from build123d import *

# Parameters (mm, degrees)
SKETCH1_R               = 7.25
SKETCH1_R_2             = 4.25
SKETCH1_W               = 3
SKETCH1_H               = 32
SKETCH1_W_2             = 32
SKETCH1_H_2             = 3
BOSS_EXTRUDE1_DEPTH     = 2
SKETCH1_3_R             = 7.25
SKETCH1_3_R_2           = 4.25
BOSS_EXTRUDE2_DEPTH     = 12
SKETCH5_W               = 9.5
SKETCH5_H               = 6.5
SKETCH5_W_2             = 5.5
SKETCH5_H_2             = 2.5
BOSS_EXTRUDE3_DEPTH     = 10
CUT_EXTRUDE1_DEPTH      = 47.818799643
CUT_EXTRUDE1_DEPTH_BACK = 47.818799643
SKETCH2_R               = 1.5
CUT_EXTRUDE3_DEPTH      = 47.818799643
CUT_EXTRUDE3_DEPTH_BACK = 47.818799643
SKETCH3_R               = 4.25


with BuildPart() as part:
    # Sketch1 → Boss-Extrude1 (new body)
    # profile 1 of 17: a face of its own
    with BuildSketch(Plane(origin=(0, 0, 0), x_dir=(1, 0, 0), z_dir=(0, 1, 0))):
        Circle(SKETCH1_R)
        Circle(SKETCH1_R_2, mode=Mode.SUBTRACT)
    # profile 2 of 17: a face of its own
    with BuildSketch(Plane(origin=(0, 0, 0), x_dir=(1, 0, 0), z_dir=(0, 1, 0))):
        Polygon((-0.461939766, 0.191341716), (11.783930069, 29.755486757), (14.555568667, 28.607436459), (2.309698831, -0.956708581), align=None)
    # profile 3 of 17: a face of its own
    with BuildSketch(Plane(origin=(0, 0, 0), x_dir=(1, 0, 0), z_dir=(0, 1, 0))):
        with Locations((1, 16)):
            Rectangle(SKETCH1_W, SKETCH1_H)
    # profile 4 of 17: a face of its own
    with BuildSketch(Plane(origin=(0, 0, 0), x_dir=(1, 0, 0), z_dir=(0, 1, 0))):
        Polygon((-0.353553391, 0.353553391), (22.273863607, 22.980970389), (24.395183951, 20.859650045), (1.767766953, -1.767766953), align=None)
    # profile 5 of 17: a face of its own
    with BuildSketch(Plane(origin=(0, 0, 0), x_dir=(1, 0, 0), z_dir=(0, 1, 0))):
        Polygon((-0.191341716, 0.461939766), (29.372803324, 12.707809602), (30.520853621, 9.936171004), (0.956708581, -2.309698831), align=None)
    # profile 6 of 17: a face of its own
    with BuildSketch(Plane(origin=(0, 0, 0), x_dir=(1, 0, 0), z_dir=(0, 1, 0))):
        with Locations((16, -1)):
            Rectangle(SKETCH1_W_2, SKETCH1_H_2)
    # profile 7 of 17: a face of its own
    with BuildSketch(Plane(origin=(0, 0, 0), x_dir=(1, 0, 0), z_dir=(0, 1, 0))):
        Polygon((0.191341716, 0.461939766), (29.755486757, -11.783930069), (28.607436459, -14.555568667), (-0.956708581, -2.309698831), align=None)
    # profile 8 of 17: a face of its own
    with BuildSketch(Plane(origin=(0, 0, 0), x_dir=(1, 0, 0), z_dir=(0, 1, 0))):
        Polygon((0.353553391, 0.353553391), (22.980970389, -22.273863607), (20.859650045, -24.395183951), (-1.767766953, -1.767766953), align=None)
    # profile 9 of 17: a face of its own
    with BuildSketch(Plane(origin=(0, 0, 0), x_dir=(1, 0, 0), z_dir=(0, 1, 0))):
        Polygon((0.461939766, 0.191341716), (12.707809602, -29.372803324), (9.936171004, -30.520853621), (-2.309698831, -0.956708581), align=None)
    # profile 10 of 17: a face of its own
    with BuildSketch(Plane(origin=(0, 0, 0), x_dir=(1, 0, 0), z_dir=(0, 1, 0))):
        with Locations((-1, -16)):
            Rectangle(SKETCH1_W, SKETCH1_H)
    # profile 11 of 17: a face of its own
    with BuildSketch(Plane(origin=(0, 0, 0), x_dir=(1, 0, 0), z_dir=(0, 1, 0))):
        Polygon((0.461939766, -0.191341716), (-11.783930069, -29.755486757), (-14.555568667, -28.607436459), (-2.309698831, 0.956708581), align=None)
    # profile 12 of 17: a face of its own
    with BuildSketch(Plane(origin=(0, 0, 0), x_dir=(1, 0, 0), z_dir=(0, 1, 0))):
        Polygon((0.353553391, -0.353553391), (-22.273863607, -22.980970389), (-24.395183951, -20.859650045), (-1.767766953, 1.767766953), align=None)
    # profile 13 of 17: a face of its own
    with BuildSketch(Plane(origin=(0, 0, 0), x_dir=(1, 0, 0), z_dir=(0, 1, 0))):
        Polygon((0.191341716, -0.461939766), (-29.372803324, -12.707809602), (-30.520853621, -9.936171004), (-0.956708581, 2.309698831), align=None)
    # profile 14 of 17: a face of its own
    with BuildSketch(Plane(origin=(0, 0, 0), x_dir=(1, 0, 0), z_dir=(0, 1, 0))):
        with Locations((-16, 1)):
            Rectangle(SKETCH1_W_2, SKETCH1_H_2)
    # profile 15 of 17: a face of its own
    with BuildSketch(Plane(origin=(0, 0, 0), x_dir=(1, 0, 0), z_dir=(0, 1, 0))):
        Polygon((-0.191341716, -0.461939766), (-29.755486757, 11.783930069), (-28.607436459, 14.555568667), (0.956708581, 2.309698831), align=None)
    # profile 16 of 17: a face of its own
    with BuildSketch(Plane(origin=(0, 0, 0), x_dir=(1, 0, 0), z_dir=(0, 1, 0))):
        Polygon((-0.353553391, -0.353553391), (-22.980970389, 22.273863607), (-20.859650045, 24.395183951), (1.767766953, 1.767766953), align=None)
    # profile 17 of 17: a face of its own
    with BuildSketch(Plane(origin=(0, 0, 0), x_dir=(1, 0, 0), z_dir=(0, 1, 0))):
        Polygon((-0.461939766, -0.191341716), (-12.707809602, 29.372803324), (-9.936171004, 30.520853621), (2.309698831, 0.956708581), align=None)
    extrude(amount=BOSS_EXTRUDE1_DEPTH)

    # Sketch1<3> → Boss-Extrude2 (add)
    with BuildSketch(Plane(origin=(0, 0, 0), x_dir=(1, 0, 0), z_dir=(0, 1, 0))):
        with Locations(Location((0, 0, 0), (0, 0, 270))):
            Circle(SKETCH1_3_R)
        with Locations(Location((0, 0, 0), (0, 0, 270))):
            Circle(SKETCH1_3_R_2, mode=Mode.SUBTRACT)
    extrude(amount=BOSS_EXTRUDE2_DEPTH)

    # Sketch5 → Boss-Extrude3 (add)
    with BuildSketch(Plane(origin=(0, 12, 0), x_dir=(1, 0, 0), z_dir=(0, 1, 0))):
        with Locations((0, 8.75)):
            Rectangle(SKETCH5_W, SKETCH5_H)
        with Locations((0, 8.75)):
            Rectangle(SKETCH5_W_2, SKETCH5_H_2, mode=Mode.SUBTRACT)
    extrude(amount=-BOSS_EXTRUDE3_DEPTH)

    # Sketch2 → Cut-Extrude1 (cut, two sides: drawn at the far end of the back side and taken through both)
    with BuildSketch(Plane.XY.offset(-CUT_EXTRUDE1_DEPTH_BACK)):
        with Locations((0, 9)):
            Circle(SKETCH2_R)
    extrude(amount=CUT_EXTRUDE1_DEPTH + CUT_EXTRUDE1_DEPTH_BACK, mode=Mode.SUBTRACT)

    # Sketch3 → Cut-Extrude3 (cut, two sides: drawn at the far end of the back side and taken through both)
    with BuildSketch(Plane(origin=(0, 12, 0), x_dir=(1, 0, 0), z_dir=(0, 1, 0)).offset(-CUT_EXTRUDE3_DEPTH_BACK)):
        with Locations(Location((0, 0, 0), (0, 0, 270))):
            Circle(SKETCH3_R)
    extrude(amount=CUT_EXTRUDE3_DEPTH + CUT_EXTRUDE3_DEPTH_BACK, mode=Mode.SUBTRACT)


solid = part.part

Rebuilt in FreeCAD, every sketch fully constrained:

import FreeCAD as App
import Part
import Sketcher
from FreeCAD import Vector
Q = App.Units.Quantity

doc = App.newDocument("Part")
body = doc.addObject("PartDesign::Body", "Body")

sketch1 = body.newObject("Sketcher::SketchObject", "Sketch")
sketch1.AttachmentSupport = (doc.getObject("XZ_Plane"), [""])
sketch1.MapMode = "FlatFace"
sketch1.addGeometry([
    Part.LineSegment(Vector(7.3, 2.5, 0), Vector(32, 2.5, 0)),
    Part.LineSegment(Vector(32, 2.5, 0), Vector(32, -0.5, 0)),
    Part.LineSegment(Vector(32, -0.5, 0), Vector(7.7, -0.5, 0)),
    Part.LineSegment(Vector(7.7, -0.5, 0), Vector(30.5, -9.9, 0)),
    Part.LineSegment(Vector(30.5, -9.9, 0), Vector(29.4, -12.7, 0)),
    Part.LineSegment(Vector(29.4, -12.7, 0), Vector(7, -3.4, 0)),
    Part.LineSegment(Vector(7, -3.4, 0), Vector(24.4, -20.9, 0)),
    Part.LineSegment(Vector(24.4, -20.9, 0), Vector(22.3, -23, 0)),
    Part.LineSegment(Vector(22.3, -23, 0), Vector(5.1, -5.8, 0)),
    Part.LineSegment(Vector(5.1, -5.8, 0), Vector(14.6, -28.6, 0)),
    Part.LineSegment(Vector(14.6, -28.6, 0), Vector(11.8, -29.8, 0)),
    Part.LineSegment(Vector(11.8, -29.8, 0), Vector(2.5, -7.3, 0)),
    Part.LineSegment(Vector(2.5, -7.3, 0), Vector(2.5, -32, 0)),
    Part.LineSegment(Vector(2.5, -32, 0), Vector(-0.5, -32, 0)),
    Part.LineSegment(Vector(-0.5, -32, 0), Vector(-0.5, -7.7, 0)),
    Part.LineSegment(Vector(-0.5, -7.7, 0), Vector(-9.9, -30.5, 0)),
    Part.LineSegment(Vector(-9.9, -30.5, 0), Vector(-12.7, -29.4, 0)),
    Part.LineSegment(Vector(-12.7, -29.4, 0), Vector(-3.4, -7, 0)),
    Part.LineSegment(Vector(-3.4, -7, 0), Vector(-20.9, -24.4, 0)),
    Part.LineSegment(Vector(-20.9, -24.4, 0), Vector(-23, -22.3, 0)),
    Part.LineSegment(Vector(-23, -22.3, 0), Vector(-5.8, -5.1, 0)),
    Part.LineSegment(Vector(-5.8, -5.1, 0), Vector(-28.6, -14.6, 0)),
    Part.LineSegment(Vector(-28.6, -14.6, 0), Vector(-29.8, -11.8, 0)),
    Part.LineSegment(Vector(-29.8, -11.8, 0), Vector(-7.3, -2.5, 0)),
    Part.LineSegment(Vector(-7.3, -2.5, 0), Vector(-32, -2.5, 0)),
    Part.LineSegment(Vector(-32, -2.5, 0), Vector(-32, 0.5, 0)),
    Part.LineSegment(Vector(-32, 0.5, 0), Vector(-7.7, 0.5, 0)),
    Part.LineSegment(Vector(-7.7, 0.5, 0), Vector(-30.5, 9.9, 0)),
    Part.LineSegment(Vector(-30.5, 9.9, 0), Vector(-29.4, 12.7, 0)),
    Part.LineSegment(Vector(-29.4, 12.7, 0), Vector(-7, 3.4, 0)),
    Part.LineSegment(Vector(-7, 3.4, 0), Vector(-24.4, 20.9, 0)),
    Part.LineSegment(Vector(-24.4, 20.9, 0), Vector(-22.3, 23, 0)),
    Part.LineSegment(Vector(-22.3, 23, 0), Vector(-5.1, 5.8, 0)),
    Part.LineSegment(Vector(-5.1, 5.8, 0), Vector(-14.6, 28.6, 0)),
    Part.LineSegment(Vector(-14.6, 28.6, 0), Vector(-11.8, 29.8, 0)),
    Part.LineSegment(Vector(-11.8, 29.8, 0), Vector(-2.5, 7.3, 0)),
    Part.LineSegment(Vector(-2.5, 7.3, 0), Vector(-2.5, 32, 0)),
    Part.LineSegment(Vector(-2.5, 32, 0), Vector(0.5, 32, 0)),
    Part.LineSegment(Vector(0.5, 32, 0), Vector(0.5, 7.7, 0)),
    Part.LineSegment(Vector(0.5, 7.7, 0), Vector(9.9, 30.5, 0)),
    Part.LineSegment(Vector(9.9, 30.5, 0), Vector(12.7, 29.4, 0)),
    Part.LineSegment(Vector(12.7, 29.4, 0), Vector(3.4, 7, 0)),
    Part.LineSegment(Vector(3.4, 7, 0), Vector(20.9, 24.4, 0)),
    Part.LineSegment(Vector(20.9, 24.4, 0), Vector(23, 22.3, 0)),
    Part.LineSegment(Vector(23, 22.3, 0), Vector(5.8, 5.1, 0)),
    Part.LineSegment(Vector(5.8, 5.1, 0), Vector(28.6, 14.6, 0)),
    Part.LineSegment(Vector(28.6, 14.6, 0), Vector(29.8, 11.8, 0)),
    Part.LineSegment(Vector(29.8, 11.8, 0), Vector(7.3, 2.5, 0)),
], False)
sketch1.addConstraint([
    Sketcher.Constraint("Coincident", 0, 2, 1, 1),
    Sketcher.Constraint("Coincident", 1, 2, 2, 1),
    Sketcher.Constraint("Coincident", 2, 2, 3, 1),
    Sketcher.Constraint("Coincident", 3, 2, 4, 1),
    Sketcher.Constraint("Coincident", 4, 2, 5, 1),
    Sketcher.Constraint("Coincident", 5, 2, 6, 1),
    Sketcher.Constraint("Coincident", 6, 2, 7, 1),
    Sketcher.Constraint("Coincident", 7, 2, 8, 1),
    Sketcher.Constraint("Coincident", 8, 2, 9, 1),
    Sketcher.Constraint("Coincident", 9, 2, 10, 1),
    Sketcher.Constraint("Coincident", 10, 2, 11, 1),
    Sketcher.Constraint("Coincident", 11, 2, 12, 1),
    Sketcher.Constraint("Coincident", 12, 2, 13, 1),
    Sketcher.Constraint("Coincident", 13, 2, 14, 1),
    Sketcher.Constraint("Coincident", 14, 2, 15, 1),
    Sketcher.Constraint("Coincident", 15, 2, 16, 1),
    Sketcher.Constraint("Coincident", 16, 2, 17, 1),
    Sketcher.Constraint("Coincident", 17, 2, 18, 1),
    Sketcher.Constraint("Coincident", 18, 2, 19, 1),
    Sketcher.Constraint("Coincident", 19, 2, 20, 1),
    Sketcher.Constraint("Coincident", 20, 2, 21, 1),
    Sketcher.Constraint("Coincident", 21, 2, 22, 1),
    Sketcher.Constraint("Coincident", 22, 2, 23, 1),
    Sketcher.Constraint("Coincident", 23, 2, 24, 1),
    Sketcher.Constraint("Coincident", 24, 2, 25, 1),
    Sketcher.Constraint("Coincident", 25, 2, 26, 1),
    Sketcher.Constraint("Coincident", 26, 2, 27, 1),
    Sketcher.Constraint("Coincident", 27, 2, 28, 1),
    Sketcher.Constraint("Coincident", 28, 2, 29, 1),
    Sketcher.Constraint("Coincident", 29, 2, 30, 1),
    Sketcher.Constraint("Coincident", 30, 2, 31, 1),
    Sketcher.Constraint("Coincident", 31, 2, 32, 1),
    Sketcher.Constraint("Coincident", 32, 2, 33, 1),
    Sketcher.Constraint("Coincident", 33, 2, 34, 1),
    Sketcher.Constraint("Coincident", 34, 2, 35, 1),
    Sketcher.Constraint("Coincident", 35, 2, 36, 1),
    Sketcher.Constraint("Coincident", 36, 2, 37, 1),
    Sketcher.Constraint("Coincident", 37, 2, 38, 1),
    Sketcher.Constraint("Coincident", 38, 2, 39, 1),
    Sketcher.Constraint("Coincident", 39, 2, 40, 1),
    Sketcher.Constraint("Coincident", 40, 2, 41, 1),
    Sketcher.Constraint("Coincident", 41, 2, 42, 1),
    Sketcher.Constraint("Coincident", 42, 2, 43, 1),
    Sketcher.Constraint("Coincident", 43, 2, 44, 1),
    Sketcher.Constraint("Coincident", 44, 2, 45, 1),
    Sketcher.Constraint("Coincident", 45, 2, 46, 1),
    Sketcher.Constraint("Coincident", 46, 2, 47, 1),
    Sketcher.Constraint("Coincident", 47, 2, 0, 1),
    Sketcher.Constraint("Horizontal", 0),
    Sketcher.Constraint("Vertical", 1),
    Sketcher.Constraint("Horizontal", 2),
    Sketcher.Constraint("Vertical", 12),
    Sketcher.Constraint("Horizontal", 13),
    Sketcher.Constraint("Vertical", 14),
    Sketcher.Constraint("Horizontal", 24),
    Sketcher.Constraint("Vertical", 25),
    Sketcher.Constraint("Horizontal", 26),
    Sketcher.Constraint("Vertical", 36),
    Sketcher.Constraint("Horizontal", 37),
    Sketcher.Constraint("Vertical", 38),
    Sketcher.Constraint("Symmetric", 0, 2, 24, 2, -1, 1),
    Sketcher.Constraint("Symmetric", 2, 2, 26, 2, -1, 1),
    Sketcher.Constraint("Symmetric", 3, 2, 27, 2, -1, 1),
    Sketcher.Constraint("Symmetric", 4, 2, 28, 2, -1, 1),
    Sketcher.Constraint("Symmetric", 5, 2, 29, 2, -1, 1),
    Sketcher.Constraint("Symmetric", 6, 2, 30, 2, -1, 1),
    Sketcher.Constraint("Symmetric", 7, 2, 31, 2, -1, 1),
    Sketcher.Constraint("Symmetric", 8, 2, 32, 2, -1, 1),
    Sketcher.Constraint("Symmetric", 9, 2, 33, 2, -1, 1),
    Sketcher.Constraint("Symmetric", 10, 2, 34, 2, -1, 1),
    Sketcher.Constraint("Symmetric", 11, 2, 35, 2, -1, 1),
    Sketcher.Constraint("Symmetric", 13, 2, 37, 2, -1, 1),
    Sketcher.Constraint("Symmetric", 15, 2, 39, 2, -1, 1),
    Sketcher.Constraint("Symmetric", 16, 2, 40, 2, -1, 1),
    Sketcher.Constraint("Symmetric", 17, 2, 41, 2, -1, 1),
    Sketcher.Constraint("Symmetric", 18, 2, 42, 2, -1, 1),
    Sketcher.Constraint("Symmetric", 19, 2, 43, 2, -1, 1),
    Sketcher.Constraint("Symmetric", 20, 2, 44, 2, -1, 1),
    Sketcher.Constraint("Symmetric", 21, 2, 45, 2, -1, 1),
    Sketcher.Constraint("Symmetric", 22, 2, 46, 2, -1, 1),
    Sketcher.Constraint("Perpendicular", 3, 4),
    Sketcher.Constraint("Perpendicular", 4, 5),
    Sketcher.Constraint("Perpendicular", 6, 7),
    Sketcher.Constraint("Perpendicular", 7, 8),
    Sketcher.Constraint("Perpendicular", 9, 10),
    Sketcher.Constraint("Perpendicular", 10, 11),
    Sketcher.Constraint("Perpendicular", 5, 15),
    Sketcher.Constraint("Perpendicular", 15, 16),
    Sketcher.Constraint("Perpendicular", 16, 17),
    Sketcher.Constraint("Perpendicular", 8, 18),
    Sketcher.Constraint("Perpendicular", 18, 19),
    Sketcher.Constraint("Perpendicular", 19, 20),
    Sketcher.Constraint("Perpendicular", 11, 21),
    Sketcher.Constraint("Perpendicular", 21, 22),
    Sketcher.Constraint("Perpendicular", 22, 23),
    Sketcher.Constraint("Perpendicular", 29, 39),
    Sketcher.Constraint("Perpendicular", 46, 47),
    Sketcher.Constraint("Equal", 37, 1),
    Sketcher.Constraint("Equal", 24, 12),
    Sketcher.Constraint("Equal", 26, 14),
    Sketcher.Constraint("Equal", 3, 6),
    Sketcher.Constraint("Equal", 4, 7),
    Sketcher.Constraint("Equal", 5, 8),
    Sketcher.Constraint("Equal", 6, 9),
    Sketcher.Constraint("Equal", 7, 10),
    Sketcher.Constraint("Equal", 8, 11),
    Sketcher.Constraint("Equal", 9, 15),
    Sketcher.Constraint("Equal", 10, 16),
    Sketcher.Constraint("Equal", 11, 17),
    Sketcher.Constraint("Equal", 15, 18),
    Sketcher.Constraint("Equal", 16, 19),
    Sketcher.Constraint("Equal", 17, 20),
    Sketcher.Constraint("Equal", 18, 21),
    Sketcher.Constraint("Equal", 19, 22),
    Sketcher.Constraint("Equal", 20, 23),
    Sketcher.Constraint("DistanceX", 13, 2, 13, 1, Q("3 mm")),
    Sketcher.Constraint("Angle", 6, Q("-45 deg")),
    Sketcher.Constraint("Distance", 4, Q("3 mm")),
    Sketcher.Constraint("DistanceX", -1, 1, 0, 2, Q("32 mm")),
    Sketcher.Constraint("Angle", 3, Q("-22.5 deg")),
    Sketcher.Constraint("Angle", 9, Q("-67.5 deg")),
    Sketcher.Constraint("DistanceY", -1, 1, 0, 2, Q("2.5 mm")),
    Sketcher.Constraint("DistanceX", 2, 2, 2, 1, Q("24.260078 mm")),
    Sketcher.Constraint("DistanceY", 7, 2, 3, 2, Q("13.044799 mm")),
])
pad1 = body.newObject("PartDesign::Pad", "Pad")
pad1.Profile = sketch1
pad1.Length = 2
pad1.Reversed = True

sketch2 = body.newObject("Sketcher::SketchObject", "Sketch001")
sketch2.AttachmentSupport = (doc.getObject("XZ_Plane"), [""])
sketch2.MapMode = "FlatFace"
sketch2.addGeometry([
    Part.Circle(Vector(0, 0, 0), Vector(0, 0, 1), 7.2),
    Part.Circle(Vector(0, 0, 0), Vector(0, 0, 1), 4.2),
], False)
sketch2.addConstraint([
    Sketcher.Constraint("Coincident", 0, 3, -1, 1),
    Sketcher.Constraint("Coincident", 1, 3, -1, 1),
    Sketcher.Constraint("Diameter", 0, Q("14.5 mm")),
    Sketcher.Constraint("Diameter", 1, Q("8.5 mm")),
])
pad2 = body.newObject("PartDesign::Pad", "Pad001")
pad2.Profile = sketch2
pad2.Length = 12
pad2.Reversed = True

sketch3 = body.newObject("Sketcher::SketchObject", "Sketch002")
sketch3.AttachmentSupport = (doc.getObject("XZ_Plane"), [""])
sketch3.MapMode = "FlatFace"
sketch3.AttachmentOffset = App.Placement(Vector(0, 0, -12), App.Rotation())
sketch3.addGeometry([
    Part.LineSegment(Vector(-4.8, -12, 0), Vector(-4.8, -5.5, 0)),
    Part.LineSegment(Vector(-4.8, -5.5, 0), Vector(4.8, -5.5, 0)),
    Part.LineSegment(Vector(4.8, -5.5, 0), Vector(4.8, -12, 0)),
    Part.LineSegment(Vector(4.8, -12, 0), Vector(-4.8, -12, 0)),
    Part.LineSegment(Vector(2.8, -7.5, 0), Vector(-2.8, -7.5, 0)),
    Part.LineSegment(Vector(-2.8, -7.5, 0), Vector(-2.8, -10, 0)),
    Part.LineSegment(Vector(-2.8, -10, 0), Vector(2.8, -10, 0)),
    Part.LineSegment(Vector(2.8, -10, 0), Vector(2.8, -7.5, 0)),
], False)
sketch3.addConstraint([
    Sketcher.Constraint("Coincident", 0, 2, 1, 1),
    Sketcher.Constraint("Coincident", 1, 2, 2, 1),
    Sketcher.Constraint("Coincident", 2, 2, 3, 1),
    Sketcher.Constraint("Coincident", 3, 2, 0, 1),
    Sketcher.Constraint("Coincident", 4, 2, 5, 1),
    Sketcher.Constraint("Coincident", 5, 2, 6, 1),
    Sketcher.Constraint("Coincident", 6, 2, 7, 1),
    Sketcher.Constraint("Coincident", 7, 2, 4, 1),
    Sketcher.Constraint("Vertical", 0),
    Sketcher.Constraint("Horizontal", 1),
    Sketcher.Constraint("Vertical", 2),
    Sketcher.Constraint("Horizontal", 3),
    Sketcher.Constraint("Horizontal", 4),
    Sketcher.Constraint("Vertical", 5),
    Sketcher.Constraint("Horizontal", 6),
    Sketcher.Constraint("Vertical", 7),
    Sketcher.Constraint("DistanceX", 1, 1, 1, 2, Q("9.5 mm")),
    Sketcher.Constraint("DistanceX", 4, 2, 4, 1, Q("5.5 mm")),
    Sketcher.Constraint("DistanceY", 0, 1, 0, 2, Q("6.5 mm")),
    Sketcher.Constraint("DistanceY", 5, 2, 5, 1, Q("2.5 mm")),
    Sketcher.Constraint("DistanceY", 2, 2, -1, 1, Q("12 mm")),
    Sketcher.Constraint("DistanceY", 5, 2, -1, 1, Q("10 mm")),
    Sketcher.Constraint("DistanceX", 0, 2, 4, 2, Q("2 mm")),
    Sketcher.Constraint("DistanceX", 0, 2, -1, 1, Q("4.75 mm")),
])
pad3 = body.newObject("PartDesign::Pad", "Pad002")
pad3.Profile = sketch3
pad3.Length = 10

sketch4 = body.newObject("Sketcher::SketchObject", "Sketch003")
sketch4.AttachmentSupport = (doc.getObject("XY_Plane"), [""])
sketch4.MapMode = "FlatFace"
sketch4.addGeometry(Part.Circle(Vector(0, 9, 0), Vector(0, 0, 1), 1.5), False)
sketch4.addConstraint([
    Sketcher.Constraint("PointOnObject", 0, 3, -2),
    Sketcher.Constraint("Diameter", 0, Q("3 mm")),
    Sketcher.Constraint("DistanceY", -1, 1, 0, 3, Q("9 mm")),
])
pocket1 = body.newObject("PartDesign::Pocket", "Pocket")
pocket1.Profile = sketch4
pocket1.Type = "ThroughAll"
pocket1.Midplane = True

sketch5 = body.newObject("Sketcher::SketchObject", "Sketch004")
sketch5.AttachmentSupport = (doc.getObject("XZ_Plane"), [""])
sketch5.MapMode = "FlatFace"
sketch5.AttachmentOffset = App.Placement(Vector(0, 0, -12), App.Rotation())
sketch5.addGeometry(Part.Circle(Vector(0, 0, 0), Vector(0, 0, 1), 4.2), False)
sketch5.addConstraint([
    Sketcher.Constraint("Coincident", 0, 3, -1, 1),
    Sketcher.Constraint("Diameter", 0, Q("8.5 mm")),
])
pocket2 = body.newObject("PartDesign::Pocket", "Pocket001")
pocket2.Profile = sketch5
pocket2.Type = "ThroughAll"
pocket2.Midplane = True

doc.recompute()
